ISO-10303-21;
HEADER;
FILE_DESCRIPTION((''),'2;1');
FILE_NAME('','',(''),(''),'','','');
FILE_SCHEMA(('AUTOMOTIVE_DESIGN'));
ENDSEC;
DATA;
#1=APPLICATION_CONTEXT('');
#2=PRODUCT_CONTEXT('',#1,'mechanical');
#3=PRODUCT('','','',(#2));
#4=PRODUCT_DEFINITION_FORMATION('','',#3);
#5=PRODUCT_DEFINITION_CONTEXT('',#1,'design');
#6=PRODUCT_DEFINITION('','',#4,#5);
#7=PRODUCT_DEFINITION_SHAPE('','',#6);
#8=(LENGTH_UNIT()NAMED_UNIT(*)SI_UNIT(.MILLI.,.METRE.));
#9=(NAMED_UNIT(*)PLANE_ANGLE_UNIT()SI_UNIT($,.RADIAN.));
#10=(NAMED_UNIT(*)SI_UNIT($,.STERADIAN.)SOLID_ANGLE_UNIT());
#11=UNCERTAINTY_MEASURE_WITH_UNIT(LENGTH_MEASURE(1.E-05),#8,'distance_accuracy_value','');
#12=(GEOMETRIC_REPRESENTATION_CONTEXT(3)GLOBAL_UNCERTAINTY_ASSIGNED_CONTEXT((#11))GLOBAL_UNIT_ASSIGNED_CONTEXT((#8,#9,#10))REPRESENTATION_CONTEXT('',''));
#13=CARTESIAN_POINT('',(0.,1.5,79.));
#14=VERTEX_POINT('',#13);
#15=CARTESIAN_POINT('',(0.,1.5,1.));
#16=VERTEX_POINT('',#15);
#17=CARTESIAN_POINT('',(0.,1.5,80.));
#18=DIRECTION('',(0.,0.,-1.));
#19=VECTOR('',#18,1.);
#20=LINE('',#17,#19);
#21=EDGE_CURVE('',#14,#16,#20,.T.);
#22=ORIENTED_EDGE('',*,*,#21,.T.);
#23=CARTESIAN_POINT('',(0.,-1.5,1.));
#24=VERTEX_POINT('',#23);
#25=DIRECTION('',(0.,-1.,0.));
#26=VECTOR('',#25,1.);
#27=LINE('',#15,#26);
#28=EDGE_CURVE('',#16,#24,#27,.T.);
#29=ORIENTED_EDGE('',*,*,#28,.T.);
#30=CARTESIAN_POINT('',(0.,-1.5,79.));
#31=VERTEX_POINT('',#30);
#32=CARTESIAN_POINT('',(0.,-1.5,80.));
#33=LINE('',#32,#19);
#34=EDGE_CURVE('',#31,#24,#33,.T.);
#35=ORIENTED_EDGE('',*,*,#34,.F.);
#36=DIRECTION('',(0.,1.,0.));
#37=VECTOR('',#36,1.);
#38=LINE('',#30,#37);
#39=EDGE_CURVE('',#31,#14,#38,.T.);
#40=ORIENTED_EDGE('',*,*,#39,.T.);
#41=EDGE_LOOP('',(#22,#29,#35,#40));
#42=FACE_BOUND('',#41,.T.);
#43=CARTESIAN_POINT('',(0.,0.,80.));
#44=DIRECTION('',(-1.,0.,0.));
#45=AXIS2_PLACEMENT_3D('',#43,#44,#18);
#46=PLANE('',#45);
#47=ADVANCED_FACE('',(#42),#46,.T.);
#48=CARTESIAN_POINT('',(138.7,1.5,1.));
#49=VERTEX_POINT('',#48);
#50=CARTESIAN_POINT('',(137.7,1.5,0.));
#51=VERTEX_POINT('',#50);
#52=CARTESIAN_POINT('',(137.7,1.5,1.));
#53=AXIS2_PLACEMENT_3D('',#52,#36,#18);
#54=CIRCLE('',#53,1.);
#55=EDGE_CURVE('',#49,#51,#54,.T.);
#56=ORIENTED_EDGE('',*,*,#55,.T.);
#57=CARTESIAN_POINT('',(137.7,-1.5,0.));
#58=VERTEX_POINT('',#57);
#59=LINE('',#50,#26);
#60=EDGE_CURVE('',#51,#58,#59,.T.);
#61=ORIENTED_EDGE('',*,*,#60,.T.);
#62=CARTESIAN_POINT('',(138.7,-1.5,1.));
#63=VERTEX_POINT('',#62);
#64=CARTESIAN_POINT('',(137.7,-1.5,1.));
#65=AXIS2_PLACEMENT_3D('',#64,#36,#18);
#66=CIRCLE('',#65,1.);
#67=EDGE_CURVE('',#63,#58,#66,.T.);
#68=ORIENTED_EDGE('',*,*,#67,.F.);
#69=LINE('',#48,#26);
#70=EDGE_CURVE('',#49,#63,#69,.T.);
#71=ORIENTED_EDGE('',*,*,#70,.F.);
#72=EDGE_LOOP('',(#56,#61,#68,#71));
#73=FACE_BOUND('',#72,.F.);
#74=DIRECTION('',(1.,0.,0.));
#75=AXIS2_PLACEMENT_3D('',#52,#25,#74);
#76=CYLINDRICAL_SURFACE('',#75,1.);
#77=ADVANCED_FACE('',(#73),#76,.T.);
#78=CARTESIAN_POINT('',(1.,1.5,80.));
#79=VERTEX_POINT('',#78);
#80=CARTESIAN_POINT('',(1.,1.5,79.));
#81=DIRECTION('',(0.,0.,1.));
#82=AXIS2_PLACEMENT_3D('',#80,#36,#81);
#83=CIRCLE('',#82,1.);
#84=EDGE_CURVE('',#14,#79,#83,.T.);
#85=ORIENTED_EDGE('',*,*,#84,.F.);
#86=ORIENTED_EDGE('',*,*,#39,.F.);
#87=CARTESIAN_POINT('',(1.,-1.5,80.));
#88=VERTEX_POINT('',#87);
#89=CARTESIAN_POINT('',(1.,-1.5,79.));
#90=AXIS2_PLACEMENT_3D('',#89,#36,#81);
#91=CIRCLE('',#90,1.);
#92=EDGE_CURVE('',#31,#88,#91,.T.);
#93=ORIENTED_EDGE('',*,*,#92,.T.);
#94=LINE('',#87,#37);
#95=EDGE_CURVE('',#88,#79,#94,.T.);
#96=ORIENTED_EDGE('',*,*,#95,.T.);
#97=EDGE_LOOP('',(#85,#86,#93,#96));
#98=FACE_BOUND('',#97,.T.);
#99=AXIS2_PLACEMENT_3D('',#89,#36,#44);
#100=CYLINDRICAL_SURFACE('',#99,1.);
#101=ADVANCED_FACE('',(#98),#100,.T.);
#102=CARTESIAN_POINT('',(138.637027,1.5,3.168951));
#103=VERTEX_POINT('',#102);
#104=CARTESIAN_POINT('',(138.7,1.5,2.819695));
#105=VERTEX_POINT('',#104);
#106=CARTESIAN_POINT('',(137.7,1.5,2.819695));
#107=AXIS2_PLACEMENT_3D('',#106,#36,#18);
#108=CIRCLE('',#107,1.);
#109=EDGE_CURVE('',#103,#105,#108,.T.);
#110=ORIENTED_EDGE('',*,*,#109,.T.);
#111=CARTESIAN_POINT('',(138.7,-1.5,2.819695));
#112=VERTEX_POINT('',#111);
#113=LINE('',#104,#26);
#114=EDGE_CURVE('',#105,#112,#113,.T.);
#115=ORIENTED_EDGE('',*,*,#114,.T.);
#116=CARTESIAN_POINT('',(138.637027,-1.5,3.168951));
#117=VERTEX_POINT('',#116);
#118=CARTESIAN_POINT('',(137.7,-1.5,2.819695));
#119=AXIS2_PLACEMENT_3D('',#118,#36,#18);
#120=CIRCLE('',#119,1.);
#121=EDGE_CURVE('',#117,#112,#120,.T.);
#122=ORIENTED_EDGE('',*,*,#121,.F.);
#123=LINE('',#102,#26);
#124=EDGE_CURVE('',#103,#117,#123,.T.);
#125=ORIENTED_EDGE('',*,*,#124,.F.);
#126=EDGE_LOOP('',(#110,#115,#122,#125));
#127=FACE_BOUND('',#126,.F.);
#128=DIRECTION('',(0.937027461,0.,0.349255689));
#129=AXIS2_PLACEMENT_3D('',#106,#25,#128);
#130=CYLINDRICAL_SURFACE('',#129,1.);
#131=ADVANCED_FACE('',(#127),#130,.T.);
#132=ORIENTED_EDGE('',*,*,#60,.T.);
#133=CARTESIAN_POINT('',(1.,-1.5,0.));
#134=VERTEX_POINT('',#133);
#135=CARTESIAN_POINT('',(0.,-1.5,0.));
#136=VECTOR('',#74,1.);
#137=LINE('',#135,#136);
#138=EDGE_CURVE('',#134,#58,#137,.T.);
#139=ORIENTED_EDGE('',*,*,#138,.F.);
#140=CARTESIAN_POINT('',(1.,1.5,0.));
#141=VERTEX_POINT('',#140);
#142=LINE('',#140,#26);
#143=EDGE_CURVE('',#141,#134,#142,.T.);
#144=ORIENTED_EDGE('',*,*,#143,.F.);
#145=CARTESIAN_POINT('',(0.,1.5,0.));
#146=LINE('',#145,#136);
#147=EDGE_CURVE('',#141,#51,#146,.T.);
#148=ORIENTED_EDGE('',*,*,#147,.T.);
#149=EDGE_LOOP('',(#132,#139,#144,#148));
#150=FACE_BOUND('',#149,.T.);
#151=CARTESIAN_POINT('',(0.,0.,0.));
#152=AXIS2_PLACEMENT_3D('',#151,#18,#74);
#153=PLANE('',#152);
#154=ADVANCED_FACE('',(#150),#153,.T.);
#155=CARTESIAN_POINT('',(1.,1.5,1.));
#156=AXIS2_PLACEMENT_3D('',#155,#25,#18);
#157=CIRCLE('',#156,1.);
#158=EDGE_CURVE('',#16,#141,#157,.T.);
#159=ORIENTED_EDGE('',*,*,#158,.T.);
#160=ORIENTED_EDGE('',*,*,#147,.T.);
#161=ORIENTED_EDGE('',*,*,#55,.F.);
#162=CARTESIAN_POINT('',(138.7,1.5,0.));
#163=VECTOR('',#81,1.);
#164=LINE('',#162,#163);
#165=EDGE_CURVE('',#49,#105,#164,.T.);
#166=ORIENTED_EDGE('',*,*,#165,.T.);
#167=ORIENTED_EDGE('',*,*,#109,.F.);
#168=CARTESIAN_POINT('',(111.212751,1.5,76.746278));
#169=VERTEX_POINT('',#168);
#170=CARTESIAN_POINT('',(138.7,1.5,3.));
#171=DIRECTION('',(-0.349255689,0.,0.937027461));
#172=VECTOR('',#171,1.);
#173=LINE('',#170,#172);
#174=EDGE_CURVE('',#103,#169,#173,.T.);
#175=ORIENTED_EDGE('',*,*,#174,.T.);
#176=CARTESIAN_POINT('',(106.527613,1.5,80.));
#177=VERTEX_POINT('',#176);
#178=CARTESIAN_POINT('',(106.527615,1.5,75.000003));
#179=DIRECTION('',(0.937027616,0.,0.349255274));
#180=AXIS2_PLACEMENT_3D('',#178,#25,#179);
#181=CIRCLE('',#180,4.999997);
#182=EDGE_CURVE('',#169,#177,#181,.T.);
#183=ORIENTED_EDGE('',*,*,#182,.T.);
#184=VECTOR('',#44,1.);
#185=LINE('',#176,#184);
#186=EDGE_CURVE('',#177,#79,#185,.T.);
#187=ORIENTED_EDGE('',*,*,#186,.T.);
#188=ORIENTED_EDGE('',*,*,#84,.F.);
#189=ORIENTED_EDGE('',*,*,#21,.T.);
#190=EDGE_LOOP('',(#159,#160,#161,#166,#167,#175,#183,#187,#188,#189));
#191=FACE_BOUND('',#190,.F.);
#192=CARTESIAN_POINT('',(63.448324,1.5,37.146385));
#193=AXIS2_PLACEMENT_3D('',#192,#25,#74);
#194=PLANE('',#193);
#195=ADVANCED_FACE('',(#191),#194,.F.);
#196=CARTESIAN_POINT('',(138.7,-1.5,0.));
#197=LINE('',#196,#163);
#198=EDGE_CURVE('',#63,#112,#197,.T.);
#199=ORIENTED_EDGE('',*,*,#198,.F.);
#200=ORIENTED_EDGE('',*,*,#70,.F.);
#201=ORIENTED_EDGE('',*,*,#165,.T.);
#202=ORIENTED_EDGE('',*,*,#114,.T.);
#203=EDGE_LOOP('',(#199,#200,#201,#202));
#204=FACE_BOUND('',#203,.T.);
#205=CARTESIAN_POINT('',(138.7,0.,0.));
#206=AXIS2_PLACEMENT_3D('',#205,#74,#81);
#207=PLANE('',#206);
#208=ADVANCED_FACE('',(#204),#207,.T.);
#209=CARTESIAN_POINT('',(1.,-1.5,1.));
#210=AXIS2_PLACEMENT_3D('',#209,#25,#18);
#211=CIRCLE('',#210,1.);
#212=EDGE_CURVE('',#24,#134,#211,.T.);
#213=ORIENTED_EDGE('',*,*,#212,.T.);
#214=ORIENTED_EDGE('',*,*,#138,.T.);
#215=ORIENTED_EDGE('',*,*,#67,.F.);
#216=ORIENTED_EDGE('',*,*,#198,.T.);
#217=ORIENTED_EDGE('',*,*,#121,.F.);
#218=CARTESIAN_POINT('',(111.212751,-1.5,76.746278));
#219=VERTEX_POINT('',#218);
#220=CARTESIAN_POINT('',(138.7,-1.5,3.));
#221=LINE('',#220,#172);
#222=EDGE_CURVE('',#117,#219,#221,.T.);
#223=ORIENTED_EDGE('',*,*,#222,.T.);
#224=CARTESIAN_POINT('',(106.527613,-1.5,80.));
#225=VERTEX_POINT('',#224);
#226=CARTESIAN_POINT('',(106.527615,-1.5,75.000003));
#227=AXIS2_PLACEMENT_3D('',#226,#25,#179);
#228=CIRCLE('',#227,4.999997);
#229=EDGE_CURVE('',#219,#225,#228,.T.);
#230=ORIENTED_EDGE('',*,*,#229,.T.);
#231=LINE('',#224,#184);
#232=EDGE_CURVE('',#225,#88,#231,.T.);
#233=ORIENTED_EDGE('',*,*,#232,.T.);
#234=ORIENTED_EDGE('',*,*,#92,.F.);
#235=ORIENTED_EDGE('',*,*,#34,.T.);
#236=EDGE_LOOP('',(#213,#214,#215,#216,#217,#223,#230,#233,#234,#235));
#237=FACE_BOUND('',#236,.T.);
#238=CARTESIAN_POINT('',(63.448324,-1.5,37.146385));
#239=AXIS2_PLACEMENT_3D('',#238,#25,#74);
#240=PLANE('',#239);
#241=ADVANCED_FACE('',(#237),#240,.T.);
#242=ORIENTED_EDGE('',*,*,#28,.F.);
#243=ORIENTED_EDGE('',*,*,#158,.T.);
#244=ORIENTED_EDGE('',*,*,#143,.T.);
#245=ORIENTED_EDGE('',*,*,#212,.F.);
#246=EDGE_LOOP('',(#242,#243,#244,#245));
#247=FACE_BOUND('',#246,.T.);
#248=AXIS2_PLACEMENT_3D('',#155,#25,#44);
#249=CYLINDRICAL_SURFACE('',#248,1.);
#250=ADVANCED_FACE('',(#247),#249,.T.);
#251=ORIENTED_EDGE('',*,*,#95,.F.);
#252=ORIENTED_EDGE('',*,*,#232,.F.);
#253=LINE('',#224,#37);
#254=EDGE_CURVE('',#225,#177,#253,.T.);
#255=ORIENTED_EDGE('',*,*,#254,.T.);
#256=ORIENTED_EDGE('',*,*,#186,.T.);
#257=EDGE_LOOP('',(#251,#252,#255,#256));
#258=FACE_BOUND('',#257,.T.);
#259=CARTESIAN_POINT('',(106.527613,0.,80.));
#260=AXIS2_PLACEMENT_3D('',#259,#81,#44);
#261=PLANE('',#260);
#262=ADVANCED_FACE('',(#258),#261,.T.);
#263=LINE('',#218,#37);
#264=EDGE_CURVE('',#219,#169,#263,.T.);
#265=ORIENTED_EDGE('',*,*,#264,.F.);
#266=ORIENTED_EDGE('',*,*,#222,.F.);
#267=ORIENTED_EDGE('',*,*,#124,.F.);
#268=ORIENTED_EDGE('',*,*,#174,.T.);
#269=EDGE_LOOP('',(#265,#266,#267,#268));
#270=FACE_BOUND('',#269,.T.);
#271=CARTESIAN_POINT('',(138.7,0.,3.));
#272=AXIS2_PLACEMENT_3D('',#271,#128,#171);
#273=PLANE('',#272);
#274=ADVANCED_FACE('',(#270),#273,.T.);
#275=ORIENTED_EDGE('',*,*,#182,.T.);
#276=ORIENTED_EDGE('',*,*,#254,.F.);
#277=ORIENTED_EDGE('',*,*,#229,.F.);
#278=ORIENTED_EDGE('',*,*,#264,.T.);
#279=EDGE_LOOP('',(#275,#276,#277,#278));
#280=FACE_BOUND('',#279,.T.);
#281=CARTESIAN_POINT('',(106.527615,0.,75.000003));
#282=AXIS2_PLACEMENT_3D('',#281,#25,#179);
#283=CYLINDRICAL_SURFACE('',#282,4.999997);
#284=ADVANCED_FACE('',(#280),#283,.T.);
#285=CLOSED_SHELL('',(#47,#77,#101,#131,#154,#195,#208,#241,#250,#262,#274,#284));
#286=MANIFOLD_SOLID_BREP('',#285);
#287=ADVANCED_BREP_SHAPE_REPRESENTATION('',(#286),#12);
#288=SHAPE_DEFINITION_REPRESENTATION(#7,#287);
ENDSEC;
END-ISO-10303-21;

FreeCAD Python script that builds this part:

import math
import FreeCAD as App
import Part
import Sketcher

V = App.Vector
Q = App.Units.Quantity


def edges_at(feature, points):
    """Names of the edges that pass closest to the given points."""
    edges = feature.Shape.Edges
    near = lambda p: min(range(len(edges)), key=lambda i: edges[i].distToShape(Part.Vertex(*p))[0])
    return sorted({f"Edge{near(p) + 1}" for p in points})

doc = App.newDocument("Part")
params = doc.addObject("Spreadsheet::Sheet", "Params")
for row, (alias, value) in enumerate([
    ("sketch1_height", "80 mm"),
    ("sketch1_height2", "3 mm"),
    ("sketch1_width", "138.7 mm"),
    ("pad1_length", "3 mm"),
    ("fillet_radius", "1 mm"),
], start=1):
    params.set(f"A{row}", alias)
    params.set(f"B{row}", "=" + value)
    params.setAlias(f"B{row}", alias)

body = doc.addObject("PartDesign::Body", "Body")

sketch1 = body.newObject("Sketcher::SketchObject", "Sketch")
sketch1.AttachmentSupport = (doc.getObject("XZ_Plane"), [""])
sketch1.MapMode = "FlatFace"
sketch1.addGeometry([
    Part.LineSegment(V(0, 80, 0), V(0, 0, 0)),
    Part.LineSegment(V(0, 0, 0), V(138.7, 0, 0)),
    Part.LineSegment(V(138.7, 0, 0), V(138.7, 3, 0)),
    Part.LineSegment(V(138.7, 3, 0), V(111.2, 76.7, 0)),
    Part.ArcOfCircle(Part.Circle(V(106.5, 75, 0), V(0, 0, 1), 5), math.radians(20), math.radians(90)),
    Part.LineSegment(V(106.5, 80, 0), V(0, 80, 0)),
], False)
sketch1.addConstraint([
    Sketcher.Constraint("Coincident", 0, 2, 1, 1),
    Sketcher.Constraint("Coincident", 1, 2, 2, 1),
    Sketcher.Constraint("Coincident", 2, 2, 3, 1),
    Sketcher.Constraint("Tangent", 3, 2, 4, 1),
    Sketcher.Constraint("Tangent", 4, 2, 5, 1),
    Sketcher.Constraint("Coincident", 5, 2, 0, 1),
    Sketcher.Constraint("Vertical", 0),
    Sketcher.Constraint("Horizontal", 1),
    Sketcher.Constraint("Vertical", 2),
    Sketcher.Constraint("Horizontal", 5),
    Sketcher.Constraint("Coincident", 0, 2, -1, 1),
    Sketcher.Constraint("DistanceY", 0, 2, 0, 1, Q("80 mm")),
    Sketcher.Constraint("DistanceY", 2, 1, 2, 2, Q("3 mm")),
    Sketcher.Constraint("DistanceX", 1, 1, 1, 2, Q("138.7 mm")),
    Sketcher.Constraint("Radius", 4, Q("4.999997 mm")),
    Sketcher.Constraint("DistanceX", 5, 2, 5, 1, Q("106.527613 mm")),
])
sketch1.setExpression("Constraints[11]", "Params.sketch1_height")
sketch1.setExpression("Constraints[12]", "Params.sketch1_height2")
sketch1.setExpression("Constraints[13]", "Params.sketch1_width")
pad1 = body.newObject("PartDesign::Pad", "Pad")
pad1.Profile = sketch1
pad1.setExpression("Length", "Params.pad1_length")
pad1.Midplane = True
doc.recompute()

fillet = body.newObject("PartDesign::Fillet", "Fillet")
fillet.Base = (pad1, edges_at(pad1, [
    (138.7, 0, 0),
    (138.7, 0, 3),
    (0, 0, 80),
    (0, 0, 0),
]))
fillet.setExpression("Radius", "Params.fillet_radius")

doc.recompute()
